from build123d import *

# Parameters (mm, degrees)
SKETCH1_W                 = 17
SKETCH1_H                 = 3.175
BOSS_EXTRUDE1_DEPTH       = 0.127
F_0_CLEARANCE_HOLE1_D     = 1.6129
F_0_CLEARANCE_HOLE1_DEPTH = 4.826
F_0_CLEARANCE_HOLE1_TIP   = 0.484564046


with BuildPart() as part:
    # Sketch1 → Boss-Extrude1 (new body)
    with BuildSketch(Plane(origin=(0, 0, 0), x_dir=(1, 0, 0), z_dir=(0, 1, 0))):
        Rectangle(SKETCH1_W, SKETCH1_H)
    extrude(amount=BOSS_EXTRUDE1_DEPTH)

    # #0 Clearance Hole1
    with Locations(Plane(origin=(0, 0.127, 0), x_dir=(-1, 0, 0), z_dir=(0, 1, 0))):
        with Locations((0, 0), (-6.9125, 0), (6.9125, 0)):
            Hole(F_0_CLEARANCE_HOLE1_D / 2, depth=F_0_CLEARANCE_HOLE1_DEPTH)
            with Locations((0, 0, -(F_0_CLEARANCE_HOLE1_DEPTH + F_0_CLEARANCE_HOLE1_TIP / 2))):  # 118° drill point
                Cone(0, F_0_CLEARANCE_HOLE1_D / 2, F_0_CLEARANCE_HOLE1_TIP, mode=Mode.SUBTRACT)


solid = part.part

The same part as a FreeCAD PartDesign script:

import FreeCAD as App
import Part
import Sketcher

V = App.Vector
Q = App.Units.Quantity


def add_polygon(sketch, points):
    """Adds a closed chain of lines whose ends are joined by coincident constraints."""
    first, n = sketch.GeometryCount, len(points)
    for a, b in zip(points, points[1:] + points[:1]):
        sketch.addGeometry(Part.LineSegment(App.Vector(*a, 0), App.Vector(*b, 0)), False)
    for i in range(n):
        sketch.addConstraint(Sketcher.Constraint("Coincident", first + i, 2, first + (i + 1) % n, 1))

doc = App.newDocument("Part")
body = doc.addObject("PartDesign::Body", "Body")

# Sketch on XZ plane
sketch1 = body.newObject("Sketcher::SketchObject", "Sketch")
sketch1.AttachmentSupport = (doc.getObject("XZ_Plane"), [""])
sketch1.MapMode = "FlatFace"
add_polygon(sketch1, [(-8.5, -1.5875), (-8.5, 1.5875), (8.5, 1.5875), (8.5, -1.5875)])  # lines 0-3
sketch1.addConstraint([
    Sketcher.Constraint("Vertical", 0),
    Sketcher.Constraint("Horizontal", 1),
    Sketcher.Constraint("Vertical", 2),
    Sketcher.Constraint("Horizontal", 3),
    Sketcher.Constraint("Symmetric", 0, 2, 2, 2, -1, 1),
    Sketcher.Constraint("DistanceY", 0, 1, 0, 2, Q("0.125 in")),
    Sketcher.Constraint("DistanceX", 1, 1, 1, 2, 17.0),
])
pad1 = body.newObject("PartDesign::Pad", "Pad")
pad1.Profile = sketch1
pad1.Length = Q("0.005 in")
pad1.Reversed = True

# Sketch on XZ plane
sketch2 = body.newObject("Sketcher::SketchObject", "Sketch001")
sketch2.AttachmentSupport = (doc.getObject("XZ_Plane"), [""])
sketch2.MapMode = "FlatFace"
sketch2.AttachmentOffset = App.Placement(V(0, 0, -0.005 * 25.4), App.Rotation())
sketch2.addGeometry([
    Part.Circle(V(0, 0, 0), V(0, 0, 1), 0.80645),
    Part.Circle(V(6.9125, 0, 0), V(0, 0, 1), 0.80645),
    Part.Circle(V(-6.9125, 0, 0), V(0, 0, 1), 0.80645),
], False)
sketch2.addConstraint([
    Sketcher.Constraint("Coincident", 0, 3, -1, 1),
    Sketcher.Constraint("Equal", 0, 1),
    Sketcher.Constraint("Equal", 1, 2),
    Sketcher.Constraint("Symmetric", 1, 3, 2, 3, -1, 1),
    Sketcher.Constraint("PointOnObject", 1, 3, -1),
    Sketcher.Constraint("Diameter", 0, Q("0.0635 in")),
    Sketcher.Constraint("DistanceX", -1, 1, 1, 3, 6.9125),
])
doc.recompute()
hole = body.newObject("PartDesign::Hole", "Hole")
hole.Profile = sketch2
hole.ThreadType = "None"
hole.Diameter = Q("0.0635 in")
hole.DepthType = "Dimension"
hole.Depth = Q("0.19 in")
hole.DrillPoint = "Angled"
hole.DrillPointAngle = 118
hole.Reversed = True

doc.recompute()
